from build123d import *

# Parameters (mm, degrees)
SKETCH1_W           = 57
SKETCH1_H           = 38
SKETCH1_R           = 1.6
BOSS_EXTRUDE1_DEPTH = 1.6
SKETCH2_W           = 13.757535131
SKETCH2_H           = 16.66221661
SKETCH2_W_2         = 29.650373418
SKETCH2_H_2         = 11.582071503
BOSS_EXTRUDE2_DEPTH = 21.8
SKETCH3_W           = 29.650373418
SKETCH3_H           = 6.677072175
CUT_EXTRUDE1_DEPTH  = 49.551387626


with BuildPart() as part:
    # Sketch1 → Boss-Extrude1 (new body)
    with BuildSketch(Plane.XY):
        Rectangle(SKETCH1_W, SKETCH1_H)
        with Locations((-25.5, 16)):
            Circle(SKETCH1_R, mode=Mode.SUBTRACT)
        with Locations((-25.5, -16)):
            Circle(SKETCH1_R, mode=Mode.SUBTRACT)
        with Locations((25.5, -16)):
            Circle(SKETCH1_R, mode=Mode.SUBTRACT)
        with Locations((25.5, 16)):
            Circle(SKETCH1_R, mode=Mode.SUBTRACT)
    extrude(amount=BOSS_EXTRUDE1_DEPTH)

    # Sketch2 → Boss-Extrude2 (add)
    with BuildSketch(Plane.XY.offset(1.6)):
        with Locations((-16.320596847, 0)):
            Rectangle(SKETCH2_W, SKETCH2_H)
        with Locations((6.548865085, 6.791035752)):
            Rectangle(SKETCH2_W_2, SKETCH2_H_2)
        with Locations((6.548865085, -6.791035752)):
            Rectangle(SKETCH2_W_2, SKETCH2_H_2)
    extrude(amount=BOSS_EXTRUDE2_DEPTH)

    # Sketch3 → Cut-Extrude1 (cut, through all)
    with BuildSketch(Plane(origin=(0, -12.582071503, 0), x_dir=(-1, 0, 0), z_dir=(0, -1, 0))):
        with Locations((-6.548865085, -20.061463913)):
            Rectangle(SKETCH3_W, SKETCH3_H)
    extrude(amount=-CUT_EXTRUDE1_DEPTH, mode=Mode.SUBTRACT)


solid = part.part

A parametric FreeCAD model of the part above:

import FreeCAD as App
import Part
import Sketcher

V = App.Vector


def add_polygon(sketch, points):
    """Adds a closed chain of lines whose ends are joined by coincident constraints."""
    first, n = sketch.GeometryCount, len(points)
    for a, b in zip(points, points[1:] + points[:1]):
        sketch.addGeometry(Part.LineSegment(App.Vector(*a, 0), App.Vector(*b, 0)), False)
    for i in range(n):
        sketch.addConstraint(Sketcher.Constraint("Coincident", first + i, 2, first + (i + 1) % n, 1))

doc = App.newDocument("Part")
body = doc.addObject("PartDesign::Body", "Body")

# Sketch on XY plane
sketch1 = body.newObject("Sketcher::SketchObject", "Sketch")
sketch1.AttachmentSupport = (doc.getObject("XY_Plane"), [""])
sketch1.MapMode = "FlatFace"
add_polygon(sketch1, [(-28.5, 19), (-28.5, -19), (28.5, -19), (28.5, 19)])  # lines 0-3
sketch1.addGeometry(Part.Circle(V(-25.5, -16, 0), V(0, 0, 1), 1.6), False)  # 4
sketch1.addGeometry(Part.Circle(V(25.5, -16, 0), V(0, 0, 1), 1.6), False)  # 5
sketch1.addGeometry(Part.Circle(V(-25.5, 16, 0), V(0, 0, 1), 1.6), False)  # 6
sketch1.addGeometry(Part.Circle(V(25.5, 16, 0), V(0, 0, 1), 1.6), False)  # 7
sketch1.addConstraint(Sketcher.Constraint("Vertical", 0))
sketch1.addConstraint(Sketcher.Constraint("Horizontal", 1))
sketch1.addConstraint(Sketcher.Constraint("Vertical", 2))
sketch1.addConstraint(Sketcher.Constraint("Horizontal", 3))
sketch1.addConstraint(Sketcher.Constraint("Equal", 4, 5))
sketch1.addConstraint(Sketcher.Constraint("Equal", 5, 6))
sketch1.addConstraint(Sketcher.Constraint("Equal", 6, 7))
sketch1.addConstraint(Sketcher.Constraint("Symmetric", 5, 3, 6, 3, -1, 1))
sketch1.addConstraint(Sketcher.Constraint("Symmetric", 4, 3, 7, 3, -1, 1))
sketch1.addConstraint(Sketcher.Constraint("Symmetric", 0, 2, 2, 2, -1, 1))
sketch1.addConstraint(Sketcher.Constraint("Symmetric", 4, 3, 5, 3, -2))
sketch1.addConstraint(Sketcher.Constraint("Diameter", 4, 3.2))
sketch1.addConstraint(Sketcher.Constraint("DistanceX", 1, 1, 1, 2, 57.0))
sketch1.addConstraint(Sketcher.Constraint("DistanceY", 0, 2, 0, 1, 38.0))
sketch1.addConstraint(Sketcher.Constraint("DistanceY", 4, 3, -1, 1, 16.0))
sketch1.addConstraint(Sketcher.Constraint("DistanceX", 4, 3, 5, 3, 51.0))
pad1 = body.newObject("PartDesign::Pad", "Pad")
pad1.Profile = sketch1
pad1.Length = 1.6

# Sketch on XY plane
sketch2 = body.newObject("Sketcher::SketchObject", "Sketch001")
sketch2.AttachmentSupport = (doc.getObject("XY_Plane"), [""])
sketch2.MapMode = "FlatFace"
sketch2.AttachmentOffset = App.Placement(V(0, 0, 1.6), App.Rotation())
add_polygon(sketch2, [(-23, 8), (-23, -8), (-9, -8), (-9, 8)])  # lines 0-3
add_polygon(sketch2, [(-8, 13), (-8, 1), (21, 1), (21, 13)])  # lines 4-7
add_polygon(sketch2, [(-8, -1), (-8, -13), (21, -13), (21, -1)])  # lines 8-11
sketch2.addConstraint(Sketcher.Constraint("Vertical", 0))
sketch2.addConstraint(Sketcher.Constraint("Horizontal", 1))
sketch2.addConstraint(Sketcher.Constraint("Vertical", 2))
sketch2.addConstraint(Sketcher.Constraint("Horizontal", 3))
sketch2.addConstraint(Sketcher.Constraint("Vertical", 4))
sketch2.addConstraint(Sketcher.Constraint("Horizontal", 5))
sketch2.addConstraint(Sketcher.Constraint("Vertical", 6))
sketch2.addConstraint(Sketcher.Constraint("Horizontal", 7))
sketch2.addConstraint(Sketcher.Constraint("Vertical", 8))
sketch2.addConstraint(Sketcher.Constraint("Horizontal", 9))
sketch2.addConstraint(Sketcher.Constraint("Vertical", 10))
sketch2.addConstraint(Sketcher.Constraint("Horizontal", 11))
sketch2.addConstraint(Sketcher.Constraint("Symmetric", 7, 2, 8, 2, -1))
sketch2.addConstraint(Sketcher.Constraint("Symmetric", 5, 2, 10, 2, -1))
sketch2.addConstraint(Sketcher.Constraint("DistanceY", -1, 1, 4, 2, 1.0))
sketch2.addConstraint(Sketcher.Constraint("DistanceY", 4, 2, 4, 1, 11.582072))
sketch2.addConstraint(Sketcher.Constraint("DistanceX", 1, 1, 1, 2, 13.757535))
sketch2.addConstraint(Sketcher.Constraint("DistanceX", 5, 1, 5, 2, 29.650373))
sketch2.addConstraint(Sketcher.Constraint("DistanceY", 0, 2, 0, 1, 16.662217))
sketch2.addConstraint(Sketcher.Constraint("DistanceY", 0, 2, -1, 1, 8.331108))
sketch2.addConstraint(Sketcher.Constraint("DistanceX", 1, 2, -1, 1, 9.441829))
sketch2.addConstraint(Sketcher.Constraint("DistanceX", 4, 2, -1, 1, 8.276322))
pad2 = body.newObject("PartDesign::Pad", "Pad001")
pad2.Profile = sketch2
pad2.Length = 21.8

# Sketch on XZ plane
sketch3 = body.newObject("Sketcher::SketchObject", "Sketch002")
sketch3.AttachmentSupport = (doc.getObject("XZ_Plane"), [""])
sketch3.MapMode = "FlatFace"
sketch3.AttachmentOffset = App.Placement(V(0, 0, 12.582072), App.Rotation())
add_polygon(sketch3, [(21, 17), (21, 23), (-8, 23), (-8, 17)])  # lines 0-3
sketch3.addConstraint(Sketcher.Constraint("Vertical", 0))
sketch3.addConstraint(Sketcher.Constraint("Horizontal", 1))
sketch3.addConstraint(Sketcher.Constraint("Vertical", 2))
sketch3.addConstraint(Sketcher.Constraint("Horizontal", 3))
sketch3.addConstraint(Sketcher.Constraint("DistanceY", -1, 1, 0, 2, 23.4))
sketch3.addConstraint(Sketcher.Constraint("DistanceX", 1, 2, 1, 1, 29.650373))
sketch3.addConstraint(Sketcher.Constraint("DistanceY", 0, 1, 0, 2, 6.677072))
sketch3.addConstraint(Sketcher.Constraint("DistanceX", -1, 1, 0, 2, 21.374052))
pocket1 = body.newObject("PartDesign::Pocket", "Pocket")
pocket1.Profile = sketch3
pocket1.Type = "ThroughAll"

doc.recompute()
